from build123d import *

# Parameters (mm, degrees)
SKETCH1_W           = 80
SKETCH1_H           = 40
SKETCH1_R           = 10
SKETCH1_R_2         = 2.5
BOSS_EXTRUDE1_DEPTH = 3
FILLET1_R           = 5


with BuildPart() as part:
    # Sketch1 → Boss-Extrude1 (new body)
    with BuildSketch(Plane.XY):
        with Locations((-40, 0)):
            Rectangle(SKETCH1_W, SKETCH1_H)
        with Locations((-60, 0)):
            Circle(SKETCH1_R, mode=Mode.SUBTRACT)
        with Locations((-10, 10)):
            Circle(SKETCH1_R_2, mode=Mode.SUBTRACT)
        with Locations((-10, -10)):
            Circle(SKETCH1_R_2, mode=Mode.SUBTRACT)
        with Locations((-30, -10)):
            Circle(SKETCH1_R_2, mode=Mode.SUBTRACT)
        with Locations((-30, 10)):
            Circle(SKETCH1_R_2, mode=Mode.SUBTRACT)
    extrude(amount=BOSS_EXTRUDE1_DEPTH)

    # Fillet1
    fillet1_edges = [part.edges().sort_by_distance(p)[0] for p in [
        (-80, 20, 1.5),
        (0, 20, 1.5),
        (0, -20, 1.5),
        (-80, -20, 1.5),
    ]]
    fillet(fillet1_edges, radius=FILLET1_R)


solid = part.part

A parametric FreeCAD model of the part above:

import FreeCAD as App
import Part
import Sketcher
from FreeCAD import Vector


def edges_at(feature, points):
    """Names of the edges that pass closest to the given points."""
    edges = feature.Shape.Edges
    near = lambda p: min(range(len(edges)), key=lambda i: edges[i].distToShape(Part.Vertex(*p))[0])
    return sorted({f"Edge{near(p) + 1}" for p in points})


def add_polygon(sketch, points):
    """Adds a closed chain of lines whose ends are joined by coincident constraints."""
    first, n = sketch.GeometryCount, len(points)
    for a, b in zip(points, points[1:] + points[:1]):
        sketch.addGeometry(Part.LineSegment(App.Vector(*a, 0), App.Vector(*b, 0)), False)
    for i in range(n):
        sketch.addConstraint(Sketcher.Constraint("Coincident", first + i, 2, first + (i + 1) % n, 1))

doc = App.newDocument("Part")
body = doc.addObject("PartDesign::Body", "Body")

# Sketch on XY plane
sketch1 = body.newObject("Sketcher::SketchObject", "Sketch")
sketch1.AttachmentSupport = (doc.getObject("XY_Plane"), [""])
sketch1.MapMode = "FlatFace"
add_polygon(sketch1, [(-80, 20), (-80, -20), (0, -20), (0, 20)])  # lines 0-3
sketch1.addGeometry(Part.Circle(Vector(-30, -10, 0), Vector(0, 0, 1), 2.5), False)  # 4
sketch1.addGeometry(Part.Circle(Vector(-10, -10, 0), Vector(0, 0, 1), 2.5), False)  # 5
sketch1.addGeometry(Part.Circle(Vector(-60, 0, 0), Vector(0, 0, 1), 10), False)  # 6
sketch1.addGeometry(Part.Circle(Vector(-30, 10, 0), Vector(0, 0, 1), 2.5), False)  # 7
sketch1.addGeometry(Part.Circle(Vector(-10, 10, 0), Vector(0, 0, 1), 2.5), False)  # 8
sketch1.addConstraint(Sketcher.Constraint("Vertical", 0))
sketch1.addConstraint(Sketcher.Constraint("Horizontal", 1))
sketch1.addConstraint(Sketcher.Constraint("Vertical", 2))
sketch1.addConstraint(Sketcher.Constraint("Horizontal", 3))
sketch1.addConstraint(Sketcher.Constraint("Equal", 4, 5))
sketch1.addConstraint(Sketcher.Constraint("Equal", 5, 7))
sketch1.addConstraint(Sketcher.Constraint("Equal", 7, 8))
sketch1.addConstraint(Sketcher.Constraint("Symmetric", 1, 2, 2, 2, -1, 1))
sketch1.addConstraint(Sketcher.Constraint("Symmetric", 4, 3, 7, 3, -1))
sketch1.addConstraint(Sketcher.Constraint("Symmetric", 5, 3, 8, 3, -1))
sketch1.addConstraint(Sketcher.Constraint("PointOnObject", 6, 3, -1))
sketch1.addConstraint(Sketcher.Constraint("Horizontal", 4, 3, 5, 3))
sketch1.addConstraint(Sketcher.Constraint("Diameter", 4, 5.0))
sketch1.addConstraint(Sketcher.Constraint("Diameter", 6, 20.0))
sketch1.addConstraint(Sketcher.Constraint("DistanceX", 1, 1, 1, 2, 80.0))
sketch1.addConstraint(Sketcher.Constraint("DistanceY", 0, 2, 0, 1, 40.0))
sketch1.addConstraint(Sketcher.Constraint("DistanceX", 4, 3, -1, 1, 30.0))
sketch1.addConstraint(Sketcher.Constraint("DistanceY", 4, 3, -1, 1, 10.0))
sketch1.addConstraint(Sketcher.Constraint("DistanceX", 5, 3, -1, 1, 10.0))
sketch1.addConstraint(Sketcher.Constraint("DistanceX", 6, 3, -1, 1, 60.0))
pad1 = body.newObject("PartDesign::Pad", "Pad")
pad1.Profile = sketch1
pad1.Length = 3
doc.recompute()

fillet = body.newObject("PartDesign::Fillet", "Fillet")
fillet.Base = (pad1, edges_at(pad1, [
    (-80, 20, 1.5),
    (0, 20, 1.5),
    (0, -20, 1.5),
    (-80, -20, 1.5),
]))
fillet.Radius = 5

doc.recompute()
